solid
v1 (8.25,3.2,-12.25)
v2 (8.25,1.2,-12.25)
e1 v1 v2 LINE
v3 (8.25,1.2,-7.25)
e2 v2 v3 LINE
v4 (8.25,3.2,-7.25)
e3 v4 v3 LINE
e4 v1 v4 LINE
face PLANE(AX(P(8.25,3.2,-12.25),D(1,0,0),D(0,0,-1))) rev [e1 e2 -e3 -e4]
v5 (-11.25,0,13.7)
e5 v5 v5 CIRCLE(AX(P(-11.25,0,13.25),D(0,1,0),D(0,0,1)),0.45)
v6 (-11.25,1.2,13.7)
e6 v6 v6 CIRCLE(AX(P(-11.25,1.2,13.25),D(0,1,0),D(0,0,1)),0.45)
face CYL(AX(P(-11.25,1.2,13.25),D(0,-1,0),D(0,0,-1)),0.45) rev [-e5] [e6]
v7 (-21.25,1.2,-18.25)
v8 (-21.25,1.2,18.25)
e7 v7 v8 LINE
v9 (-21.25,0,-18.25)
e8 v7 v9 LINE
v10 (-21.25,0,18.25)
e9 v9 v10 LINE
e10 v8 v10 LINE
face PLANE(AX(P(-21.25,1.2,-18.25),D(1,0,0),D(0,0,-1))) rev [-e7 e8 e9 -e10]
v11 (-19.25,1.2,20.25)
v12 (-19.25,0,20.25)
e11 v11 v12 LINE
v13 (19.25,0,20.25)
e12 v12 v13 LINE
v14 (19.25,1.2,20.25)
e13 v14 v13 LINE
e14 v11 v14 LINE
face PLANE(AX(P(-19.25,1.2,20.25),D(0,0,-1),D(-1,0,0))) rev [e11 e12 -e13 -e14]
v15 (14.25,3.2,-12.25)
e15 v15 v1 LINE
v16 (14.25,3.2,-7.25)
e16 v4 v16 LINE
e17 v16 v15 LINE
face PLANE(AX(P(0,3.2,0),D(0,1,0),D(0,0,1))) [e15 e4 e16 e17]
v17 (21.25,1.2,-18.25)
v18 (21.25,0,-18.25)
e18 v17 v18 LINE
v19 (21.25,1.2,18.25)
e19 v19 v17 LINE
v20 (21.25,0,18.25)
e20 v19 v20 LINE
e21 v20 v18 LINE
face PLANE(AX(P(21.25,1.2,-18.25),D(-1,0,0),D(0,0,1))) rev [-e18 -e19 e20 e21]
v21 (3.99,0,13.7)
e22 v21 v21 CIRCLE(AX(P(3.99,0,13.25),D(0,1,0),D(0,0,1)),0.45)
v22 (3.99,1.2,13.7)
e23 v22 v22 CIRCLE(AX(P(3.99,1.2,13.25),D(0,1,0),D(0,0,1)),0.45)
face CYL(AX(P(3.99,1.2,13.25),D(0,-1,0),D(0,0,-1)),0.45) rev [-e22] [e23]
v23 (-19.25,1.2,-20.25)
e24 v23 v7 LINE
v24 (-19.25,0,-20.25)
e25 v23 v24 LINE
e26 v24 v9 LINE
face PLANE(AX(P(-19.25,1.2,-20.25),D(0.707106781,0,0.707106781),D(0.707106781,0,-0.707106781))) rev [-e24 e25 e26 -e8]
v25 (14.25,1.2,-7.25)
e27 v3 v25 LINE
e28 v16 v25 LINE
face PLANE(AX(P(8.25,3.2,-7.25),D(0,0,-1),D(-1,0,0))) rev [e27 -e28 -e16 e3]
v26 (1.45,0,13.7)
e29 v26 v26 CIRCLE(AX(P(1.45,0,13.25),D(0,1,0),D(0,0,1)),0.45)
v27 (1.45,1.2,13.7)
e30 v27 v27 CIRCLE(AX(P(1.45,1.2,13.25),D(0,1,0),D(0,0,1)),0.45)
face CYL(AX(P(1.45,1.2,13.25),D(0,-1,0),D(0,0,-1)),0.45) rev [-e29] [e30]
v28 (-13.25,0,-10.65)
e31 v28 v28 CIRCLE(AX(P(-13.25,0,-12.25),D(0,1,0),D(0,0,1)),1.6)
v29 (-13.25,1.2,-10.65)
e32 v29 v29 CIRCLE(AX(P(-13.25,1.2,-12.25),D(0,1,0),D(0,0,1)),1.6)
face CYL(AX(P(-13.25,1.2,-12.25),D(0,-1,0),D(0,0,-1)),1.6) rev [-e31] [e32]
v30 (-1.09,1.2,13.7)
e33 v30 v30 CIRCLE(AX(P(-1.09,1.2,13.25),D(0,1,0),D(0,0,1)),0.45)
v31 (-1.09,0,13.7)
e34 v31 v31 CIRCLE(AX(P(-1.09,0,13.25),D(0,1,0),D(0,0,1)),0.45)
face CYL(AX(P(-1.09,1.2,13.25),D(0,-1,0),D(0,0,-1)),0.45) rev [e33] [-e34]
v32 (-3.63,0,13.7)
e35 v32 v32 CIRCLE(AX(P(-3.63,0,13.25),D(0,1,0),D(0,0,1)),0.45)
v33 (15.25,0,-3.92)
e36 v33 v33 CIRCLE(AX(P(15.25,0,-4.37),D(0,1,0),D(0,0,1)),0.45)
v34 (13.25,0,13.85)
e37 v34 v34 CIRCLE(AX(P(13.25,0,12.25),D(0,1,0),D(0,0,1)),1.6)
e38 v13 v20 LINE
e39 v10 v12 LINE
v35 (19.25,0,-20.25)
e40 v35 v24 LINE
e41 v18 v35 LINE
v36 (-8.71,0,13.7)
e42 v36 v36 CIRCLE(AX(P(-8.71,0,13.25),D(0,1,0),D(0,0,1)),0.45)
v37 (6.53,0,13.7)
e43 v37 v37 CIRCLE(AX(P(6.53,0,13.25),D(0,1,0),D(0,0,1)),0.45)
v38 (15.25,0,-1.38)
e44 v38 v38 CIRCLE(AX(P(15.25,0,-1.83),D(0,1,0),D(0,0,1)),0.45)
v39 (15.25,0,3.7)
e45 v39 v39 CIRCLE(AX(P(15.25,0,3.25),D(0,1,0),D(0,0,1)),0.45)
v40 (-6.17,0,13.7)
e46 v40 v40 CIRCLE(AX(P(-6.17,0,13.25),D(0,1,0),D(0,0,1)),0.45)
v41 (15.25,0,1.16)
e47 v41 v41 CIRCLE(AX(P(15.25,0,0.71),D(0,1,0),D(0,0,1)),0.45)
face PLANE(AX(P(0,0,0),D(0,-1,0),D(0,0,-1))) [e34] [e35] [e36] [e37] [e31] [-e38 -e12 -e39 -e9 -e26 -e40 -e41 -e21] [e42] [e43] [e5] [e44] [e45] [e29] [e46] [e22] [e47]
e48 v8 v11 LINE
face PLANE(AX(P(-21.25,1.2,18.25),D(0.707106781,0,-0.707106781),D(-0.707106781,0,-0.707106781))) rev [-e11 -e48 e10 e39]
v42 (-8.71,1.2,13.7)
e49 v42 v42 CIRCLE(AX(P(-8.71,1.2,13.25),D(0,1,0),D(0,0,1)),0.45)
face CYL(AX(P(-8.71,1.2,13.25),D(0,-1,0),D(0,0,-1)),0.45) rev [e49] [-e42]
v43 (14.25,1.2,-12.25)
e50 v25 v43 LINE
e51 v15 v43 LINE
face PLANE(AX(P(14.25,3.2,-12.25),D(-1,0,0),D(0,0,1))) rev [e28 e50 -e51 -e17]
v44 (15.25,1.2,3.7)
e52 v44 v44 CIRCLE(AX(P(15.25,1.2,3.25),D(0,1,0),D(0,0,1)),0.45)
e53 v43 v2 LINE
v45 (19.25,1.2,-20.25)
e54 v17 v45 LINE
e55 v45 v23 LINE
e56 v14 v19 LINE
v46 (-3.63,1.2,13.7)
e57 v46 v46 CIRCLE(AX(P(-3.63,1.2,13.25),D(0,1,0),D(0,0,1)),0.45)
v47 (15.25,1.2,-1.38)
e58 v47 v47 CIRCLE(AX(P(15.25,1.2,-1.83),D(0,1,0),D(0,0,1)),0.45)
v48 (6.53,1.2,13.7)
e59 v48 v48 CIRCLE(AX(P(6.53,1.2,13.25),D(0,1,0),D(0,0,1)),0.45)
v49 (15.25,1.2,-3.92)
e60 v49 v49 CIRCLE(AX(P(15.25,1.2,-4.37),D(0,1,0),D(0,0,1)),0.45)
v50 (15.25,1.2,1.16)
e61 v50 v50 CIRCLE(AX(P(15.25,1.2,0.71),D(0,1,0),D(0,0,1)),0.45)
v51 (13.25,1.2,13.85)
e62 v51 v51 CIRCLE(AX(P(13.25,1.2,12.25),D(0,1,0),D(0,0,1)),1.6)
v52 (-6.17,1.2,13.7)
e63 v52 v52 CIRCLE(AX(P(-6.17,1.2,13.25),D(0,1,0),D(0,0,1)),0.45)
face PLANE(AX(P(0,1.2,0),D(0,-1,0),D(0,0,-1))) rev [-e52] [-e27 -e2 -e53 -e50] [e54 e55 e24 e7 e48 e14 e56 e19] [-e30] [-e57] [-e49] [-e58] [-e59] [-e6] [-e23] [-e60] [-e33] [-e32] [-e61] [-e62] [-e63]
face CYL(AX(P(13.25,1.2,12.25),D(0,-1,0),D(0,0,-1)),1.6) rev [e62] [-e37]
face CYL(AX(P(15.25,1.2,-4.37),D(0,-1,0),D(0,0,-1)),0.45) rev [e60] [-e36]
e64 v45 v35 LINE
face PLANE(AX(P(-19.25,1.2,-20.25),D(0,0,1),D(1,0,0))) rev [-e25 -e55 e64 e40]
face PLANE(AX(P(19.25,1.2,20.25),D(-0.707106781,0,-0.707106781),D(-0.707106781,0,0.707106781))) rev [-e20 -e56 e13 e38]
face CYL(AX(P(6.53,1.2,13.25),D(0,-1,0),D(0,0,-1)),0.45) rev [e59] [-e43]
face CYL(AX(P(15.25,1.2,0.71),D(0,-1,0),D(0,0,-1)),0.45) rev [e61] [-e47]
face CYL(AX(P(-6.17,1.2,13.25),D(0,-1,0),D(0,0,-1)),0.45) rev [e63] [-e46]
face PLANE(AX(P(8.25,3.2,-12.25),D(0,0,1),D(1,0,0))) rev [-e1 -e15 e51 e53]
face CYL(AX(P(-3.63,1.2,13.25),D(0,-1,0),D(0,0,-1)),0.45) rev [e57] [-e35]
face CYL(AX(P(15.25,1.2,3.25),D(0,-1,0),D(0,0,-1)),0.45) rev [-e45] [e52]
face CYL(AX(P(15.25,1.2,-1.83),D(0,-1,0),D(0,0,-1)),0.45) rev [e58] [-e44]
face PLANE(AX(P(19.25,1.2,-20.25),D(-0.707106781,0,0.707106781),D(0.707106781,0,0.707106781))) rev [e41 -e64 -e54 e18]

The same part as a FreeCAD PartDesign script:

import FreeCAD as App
import Part
import Sketcher


def add_polygon(sketch, points):
    """Adds a closed chain of lines whose ends are joined by coincident constraints."""
    first, n = sketch.GeometryCount, len(points)
    for a, b in zip(points, points[1:] + points[:1]):
        sketch.addGeometry(Part.LineSegment(App.Vector(*a, 0), App.Vector(*b, 0)), False)
    for i in range(n):
        sketch.addConstraint(Sketcher.Constraint("Coincident", first + i, 2, first + (i + 1) % n, 1))

doc = App.newDocument("Part")
body = doc.addObject("PartDesign::Body", "Body")

sketch1 = body.newObject("Sketcher::SketchObject", "Sketch")
sketch1.AttachmentSupport = (doc.getObject("XZ_Plane"), [""])
sketch1.MapMode = "FlatFace"
add_polygon(sketch1, [(19.25, 20.25), (21.25, 18.25), (21.25, -18.25), (19.25, -20.25), (-19.25, -20.25), (-21.25, -18.25), (-21.25, 18.25), (-19.25, 20.25)])
sketch1.addGeometry(Part.Circle(App.Vector(-11.25, 13.25, 0), App.Vector(0, 0, 1), 0.45), False)
sketch1.addGeometry(Part.Circle(App.Vector(-8.71, 13.25, 0), App.Vector(0, 0, 1), 0.45), False)
sketch1.addGeometry(Part.Circle(App.Vector(-6.17, 13.25, 0), App.Vector(0, 0, 1), 0.45), False)
sketch1.addGeometry(Part.Circle(App.Vector(-3.63, 13.25, 0), App.Vector(0, 0, 1), 0.45), False)
sketch1.addGeometry(Part.Circle(App.Vector(-1.09, 13.25, 0), App.Vector(0, 0, 1), 0.45), False)
sketch1.addGeometry(Part.Circle(App.Vector(1.45, 13.25, 0), App.Vector(0, 0, 1), 0.45), False)
sketch1.addGeometry(Part.Circle(App.Vector(3.99, 13.25, 0), App.Vector(0, 0, 1), 0.45), False)
sketch1.addGeometry(Part.Circle(App.Vector(6.53, 13.25, 0), App.Vector(0, 0, 1), 0.45), False)
sketch1.addGeometry(Part.Circle(App.Vector(13.25, 12.25, 0), App.Vector(0, 0, 1), 1.6), False)
sketch1.addGeometry(Part.Circle(App.Vector(15.25, 3.25, 0), App.Vector(0, 0, 1), 0.45), False)
sketch1.addGeometry(Part.Circle(App.Vector(15.25, 0.71, 0), App.Vector(0, 0, 1), 0.45), False)
sketch1.addGeometry(Part.Circle(App.Vector(-13.25, -12.25, 0), App.Vector(0, 0, 1), 1.6), False)
sketch1.addGeometry(Part.Circle(App.Vector(15.25, -1.83, 0), App.Vector(0, 0, 1), 0.45), False)
sketch1.addGeometry(Part.Circle(App.Vector(15.25, -4.37, 0), App.Vector(0, 0, 1), 0.45), False)
sketch1.addConstraint([
    Sketcher.Constraint("Vertical", 1),
    Sketcher.Constraint("Horizontal", 3),
    Sketcher.Constraint("Vertical", 5),
    Sketcher.Constraint("Horizontal", 7),
    Sketcher.Constraint("Equal", 8, 9),
    Sketcher.Constraint("Equal", 9, 10),
    Sketcher.Constraint("Equal", 10, 11),
    Sketcher.Constraint("Equal", 11, 12),
    Sketcher.Constraint("Equal", 12, 13),
    Sketcher.Constraint("Equal", 13, 14),
    Sketcher.Constraint("Equal", 14, 15),
    Sketcher.Constraint("Equal", 15, 17),
    Sketcher.Constraint("Equal", 17, 18),
    Sketcher.Constraint("Equal", 16, 19),
    Sketcher.Constraint("Equal", 18, 20),
    Sketcher.Constraint("Equal", 20, 21),
    Sketcher.Constraint("Symmetric", 16, 3, 19, 3, -1, 1),
    Sketcher.Constraint("Symmetric", 0, 2, 4, 2, -1, 1),
    Sketcher.Constraint("Symmetric", 2, 2, 6, 2, -1, 1),
    Sketcher.Constraint("Perpendicular", 0, 2),
    Sketcher.Constraint("Perpendicular", 2, 4),
    Sketcher.Constraint("Perpendicular", 4, 6),
    Sketcher.Constraint("Horizontal", 8, 3, 9, 3),
    Sketcher.Constraint("Horizontal", 9, 3, 10, 3),
    Sketcher.Constraint("Horizontal", 10, 3, 11, 3),
    Sketcher.Constraint("Horizontal", 11, 3, 12, 3),
    Sketcher.Constraint("Horizontal", 12, 3, 13, 3),
    Sketcher.Constraint("Horizontal", 13, 3, 14, 3),
    Sketcher.Constraint("Horizontal", 14, 3, 15, 3),
    Sketcher.Constraint("Horizontal", 1, 2, 4, 2),
    Sketcher.Constraint("Vertical", 17, 3, 18, 3),
    Sketcher.Constraint("Vertical", 18, 3, 20, 3),
    Sketcher.Constraint("Vertical", 20, 3, 21, 3),
    Sketcher.Constraint("Vertical", 3, 2, 6, 2),
    Sketcher.Constraint("Diameter", 8, 0.9),
    Sketcher.Constraint("Diameter", 16, 3.2),
    Sketcher.Constraint("DistanceX", 3, 2, 3, 1, 38.5),
    Sketcher.Constraint("DistanceY", 1, 2, 1, 1, 36.5),
    Sketcher.Constraint("DistanceY", 16, 3, 15, 3, 1.0),
    Sketcher.Constraint("DistanceX", 16, 3, 17, 3, 2.0),
    Sketcher.Constraint("DistanceY", 17, 3, 16, 3, 9.0),
    Sketcher.Constraint("DistanceX", 19, 3, 8, 3, 2.0),
    Sketcher.Constraint("DistanceX", 16, 3, 0, 2, 8.0),
    Sketcher.Constraint("DistanceY", 16, 3, 0, 2, 6.0),
    Sketcher.Constraint("DistanceX", 2, 2, 1, 2, 2.0),
    Sketcher.Constraint("DistanceX", 8, 3, 13, 3, 12.7),
    Sketcher.Constraint("DistanceX", 9, 3, 14, 3, 12.7),
    Sketcher.Constraint("DistanceX", 10, 3, 15, 3, 12.7),
    Sketcher.Constraint("DistanceX", 9, 3, -1, 1, 8.71),
    Sketcher.Constraint("DistanceX", 10, 3, -1, 1, 6.17),
    Sketcher.Constraint("DistanceX", 11, 3, -1, 1, 3.63),
    Sketcher.Constraint("DistanceX", 12, 3, -1, 1, 1.09),
    Sketcher.Constraint("DistanceY", -1, 1, 18, 3, 0.71),
    Sketcher.Constraint("DistanceY", 20, 3, -1, 1, 1.83),
    Sketcher.Constraint("DistanceY", 21, 3, -1, 1, 4.37),
])
pad1 = body.newObject("PartDesign::Pad", "Pad")
pad1.Profile = sketch1
pad1.Length = 1.2
pad1.Reversed = True

sketch2 = body.newObject("Sketcher::SketchObject", "Sketch001")
sketch2.AttachmentSupport = (doc.getObject("XZ_Plane"), [""])
sketch2.MapMode = "FlatFace"
sketch2.AttachmentOffset = App.Placement(App.Vector(0, 0, -1.2), App.Rotation())
add_polygon(sketch2, [(8, -12), (8, -7), (14, -7), (14, -12)])
sketch2.addConstraint([
    Sketcher.Constraint("Vertical", 0),
    Sketcher.Constraint("Horizontal", 1),
    Sketcher.Constraint("Vertical", 2),
    Sketcher.Constraint("Horizontal", 3),
    Sketcher.Constraint("DistanceX", 1, 1, 1, 2, 6.0),
    Sketcher.Constraint("DistanceY", 0, 1, 0, 2, 5.0),
    Sketcher.Constraint("DistanceX", -1, 1, 0, 2, 8.25),
    Sketcher.Constraint("DistanceY", 0, 2, -1, 1, 7.25),
])
pad2 = body.newObject("PartDesign::Pad", "Pad001")
pad2.Profile = sketch2
pad2.Length = 2
pad2.Reversed = True

doc.recompute()
